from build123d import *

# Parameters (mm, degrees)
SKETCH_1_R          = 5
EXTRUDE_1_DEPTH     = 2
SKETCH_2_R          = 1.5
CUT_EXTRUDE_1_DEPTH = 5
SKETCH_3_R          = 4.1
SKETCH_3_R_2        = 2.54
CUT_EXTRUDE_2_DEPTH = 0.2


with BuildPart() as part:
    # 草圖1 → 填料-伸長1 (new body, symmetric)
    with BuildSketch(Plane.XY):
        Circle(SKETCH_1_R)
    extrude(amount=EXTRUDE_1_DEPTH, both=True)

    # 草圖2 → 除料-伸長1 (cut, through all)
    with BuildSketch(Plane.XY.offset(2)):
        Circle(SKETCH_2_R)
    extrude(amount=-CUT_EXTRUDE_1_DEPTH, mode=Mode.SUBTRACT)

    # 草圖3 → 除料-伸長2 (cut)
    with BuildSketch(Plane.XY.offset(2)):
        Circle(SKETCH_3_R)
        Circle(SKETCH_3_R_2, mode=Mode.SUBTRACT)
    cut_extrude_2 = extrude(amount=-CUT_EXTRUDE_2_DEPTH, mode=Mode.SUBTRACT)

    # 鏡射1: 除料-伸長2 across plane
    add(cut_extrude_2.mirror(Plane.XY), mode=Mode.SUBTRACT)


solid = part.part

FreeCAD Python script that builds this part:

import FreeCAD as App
import Part
import Sketcher

doc = App.newDocument("Part")
body = doc.addObject("PartDesign::Body", "Body")

sketch1 = body.newObject("Sketcher::SketchObject", "Sketch")
sketch1.AttachmentSupport = (doc.getObject("XY_Plane"), [""])
sketch1.MapMode = "FlatFace"
sketch1.addGeometry(Part.Circle(App.Vector(0, 0, 0), App.Vector(0, 0, 1), 5), False)
sketch1.addConstraint(Sketcher.Constraint("Coincident", 0, 3, -1, 1))
sketch1.addConstraint(Sketcher.Constraint("Diameter", 0, 10.0))
pad1 = body.newObject("PartDesign::Pad", "Pad")
pad1.Profile = sketch1
pad1.Length = 4
pad1.Midplane = True

sketch2 = body.newObject("Sketcher::SketchObject", "Sketch001")
sketch2.AttachmentSupport = (doc.getObject("XY_Plane"), [""])
sketch2.MapMode = "FlatFace"
sketch2.AttachmentOffset = App.Placement(App.Vector(0, 0, 2), App.Rotation())
sketch2.addGeometry(Part.Circle(App.Vector(0, 0, 0), App.Vector(0, 0, 1), 1.5), False)
sketch2.addConstraint(Sketcher.Constraint("Coincident", 0, 3, -1, 1))
sketch2.addConstraint(Sketcher.Constraint("Diameter", 0, 3.0))
pocket1 = body.newObject("PartDesign::Pocket", "Pocket")
pocket1.Profile = sketch2
pocket1.Type = "ThroughAll"

sketch3 = body.newObject("Sketcher::SketchObject", "Sketch002")
sketch3.AttachmentSupport = (doc.getObject("XY_Plane"), [""])
sketch3.MapMode = "FlatFace"
sketch3.AttachmentOffset = App.Placement(App.Vector(0, 0, 2), App.Rotation())
sketch3.addGeometry(Part.Circle(App.Vector(0, 0, 0), App.Vector(0, 0, 1), 4.1), False)
sketch3.addGeometry(Part.Circle(App.Vector(0, 0, 0), App.Vector(0, 0, 1), 2.54), False)
sketch3.addConstraint(Sketcher.Constraint("Coincident", 0, 3, -1, 1))
sketch3.addConstraint(Sketcher.Constraint("Coincident", 1, 3, -1, 1))
sketch3.addConstraint(Sketcher.Constraint("Diameter", 0, 8.2))
sketch3.addConstraint(Sketcher.Constraint("Diameter", 1, 5.08))
pocket2 = body.newObject("PartDesign::Pocket", "Pocket001")
pocket2.Profile = sketch3
pocket2.Length = 0.2
doc.recompute()

mirrored = body.newObject("PartDesign::Mirrored", "Mirrored")
mirrored.Originals = [pocket2]
mirrored.MirrorPlane = (doc.getObject("XY_Plane"), [""])
body.Tip = mirrored

doc.recompute()
